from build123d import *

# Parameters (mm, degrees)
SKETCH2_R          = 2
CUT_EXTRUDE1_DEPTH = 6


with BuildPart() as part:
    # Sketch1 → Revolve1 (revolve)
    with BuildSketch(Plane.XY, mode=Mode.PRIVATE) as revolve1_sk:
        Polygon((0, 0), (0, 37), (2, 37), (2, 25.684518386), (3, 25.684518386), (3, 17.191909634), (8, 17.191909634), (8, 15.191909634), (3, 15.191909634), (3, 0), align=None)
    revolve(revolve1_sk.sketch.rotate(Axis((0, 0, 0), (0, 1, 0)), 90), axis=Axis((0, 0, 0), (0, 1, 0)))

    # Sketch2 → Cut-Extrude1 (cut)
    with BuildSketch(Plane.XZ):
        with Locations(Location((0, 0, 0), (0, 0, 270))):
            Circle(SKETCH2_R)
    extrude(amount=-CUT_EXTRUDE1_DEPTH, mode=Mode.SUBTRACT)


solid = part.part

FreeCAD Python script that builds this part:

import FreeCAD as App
import Part
import Sketcher
Q = App.Units.Quantity


def add_polygon(sketch, points):
    """Adds a closed chain of lines whose ends are joined by coincident constraints."""
    first, n = sketch.GeometryCount, len(points)
    for a, b in zip(points, points[1:] + points[:1]):
        sketch.addGeometry(Part.LineSegment(App.Vector(*a, 0), App.Vector(*b, 0)), False)
    for i in range(n):
        sketch.addConstraint(Sketcher.Constraint("Coincident", first + i, 2, first + (i + 1) % n, 1))

doc = App.newDocument("Part")
body = doc.addObject("PartDesign::Body", "Body")

sketch1 = body.newObject("Sketcher::SketchObject", "Sketch")
sketch1.AttachmentSupport = (doc.getObject("XY_Plane"), [""])
sketch1.MapMode = "FlatFace"
add_polygon(sketch1, [(0, 37), (0, 0), (3, 0), (3, 15.2), (8, 15.2), (8, 17.2), (3, 17.2), (3, 25.7), (2, 25.7), (2, 37)])
sketch1.addConstraint([
    Sketcher.Constraint("Vertical", 0),
    Sketcher.Constraint("Horizontal", 1),
    Sketcher.Constraint("Vertical", 2),
    Sketcher.Constraint("Horizontal", 3),
    Sketcher.Constraint("Vertical", 4),
    Sketcher.Constraint("Horizontal", 5),
    Sketcher.Constraint("Vertical", 6),
    Sketcher.Constraint("Horizontal", 7),
    Sketcher.Constraint("Vertical", 8),
    Sketcher.Constraint("Horizontal", 9),
    Sketcher.Constraint("Coincident", 0, 2, -1, 1),
    Sketcher.Constraint("Vertical", 2, 2, 5, 2),
    Sketcher.Constraint("Equal", 9, 4),
    Sketcher.Constraint("DistanceX", 1, 1, 1, 2, Q("3 mm")),
    Sketcher.Constraint("DistanceX", 3, 1, 3, 2, Q("5 mm")),
    Sketcher.Constraint("DistanceX", 7, 2, 7, 1, Q("1 mm")),
    Sketcher.Constraint("DistanceY", 0, 2, 0, 1, Q("37 mm")),
    Sketcher.Constraint("DistanceY", 2, 1, 2, 2, Q("15.19191 mm")),
    Sketcher.Constraint("DistanceY", 6, 1, 6, 2, Q("8.492609 mm")),
])
revolution = body.newObject("PartDesign::Revolution", "Revolution")
revolution.Profile = sketch1
revolution.ReferenceAxis = (sketch1, ["V_Axis"])
revolution.Angle = 360

sketch2 = body.newObject("Sketcher::SketchObject", "Sketch001")
sketch2.AttachmentSupport = (doc.getObject("XZ_Plane"), [""])
sketch2.MapMode = "FlatFace"
sketch2.addGeometry(Part.Circle(App.Vector(0, 0, 0), App.Vector(0, 0, 1), 2), False)
sketch2.addConstraint([
    Sketcher.Constraint("Coincident", 0, 3, -1, 1),
    Sketcher.Constraint("Diameter", 0, Q("4 mm")),
])
pocket1 = body.newObject("PartDesign::Pocket", "Pocket")
pocket1.Profile = sketch2
pocket1.Length = 6

doc.recompute()
